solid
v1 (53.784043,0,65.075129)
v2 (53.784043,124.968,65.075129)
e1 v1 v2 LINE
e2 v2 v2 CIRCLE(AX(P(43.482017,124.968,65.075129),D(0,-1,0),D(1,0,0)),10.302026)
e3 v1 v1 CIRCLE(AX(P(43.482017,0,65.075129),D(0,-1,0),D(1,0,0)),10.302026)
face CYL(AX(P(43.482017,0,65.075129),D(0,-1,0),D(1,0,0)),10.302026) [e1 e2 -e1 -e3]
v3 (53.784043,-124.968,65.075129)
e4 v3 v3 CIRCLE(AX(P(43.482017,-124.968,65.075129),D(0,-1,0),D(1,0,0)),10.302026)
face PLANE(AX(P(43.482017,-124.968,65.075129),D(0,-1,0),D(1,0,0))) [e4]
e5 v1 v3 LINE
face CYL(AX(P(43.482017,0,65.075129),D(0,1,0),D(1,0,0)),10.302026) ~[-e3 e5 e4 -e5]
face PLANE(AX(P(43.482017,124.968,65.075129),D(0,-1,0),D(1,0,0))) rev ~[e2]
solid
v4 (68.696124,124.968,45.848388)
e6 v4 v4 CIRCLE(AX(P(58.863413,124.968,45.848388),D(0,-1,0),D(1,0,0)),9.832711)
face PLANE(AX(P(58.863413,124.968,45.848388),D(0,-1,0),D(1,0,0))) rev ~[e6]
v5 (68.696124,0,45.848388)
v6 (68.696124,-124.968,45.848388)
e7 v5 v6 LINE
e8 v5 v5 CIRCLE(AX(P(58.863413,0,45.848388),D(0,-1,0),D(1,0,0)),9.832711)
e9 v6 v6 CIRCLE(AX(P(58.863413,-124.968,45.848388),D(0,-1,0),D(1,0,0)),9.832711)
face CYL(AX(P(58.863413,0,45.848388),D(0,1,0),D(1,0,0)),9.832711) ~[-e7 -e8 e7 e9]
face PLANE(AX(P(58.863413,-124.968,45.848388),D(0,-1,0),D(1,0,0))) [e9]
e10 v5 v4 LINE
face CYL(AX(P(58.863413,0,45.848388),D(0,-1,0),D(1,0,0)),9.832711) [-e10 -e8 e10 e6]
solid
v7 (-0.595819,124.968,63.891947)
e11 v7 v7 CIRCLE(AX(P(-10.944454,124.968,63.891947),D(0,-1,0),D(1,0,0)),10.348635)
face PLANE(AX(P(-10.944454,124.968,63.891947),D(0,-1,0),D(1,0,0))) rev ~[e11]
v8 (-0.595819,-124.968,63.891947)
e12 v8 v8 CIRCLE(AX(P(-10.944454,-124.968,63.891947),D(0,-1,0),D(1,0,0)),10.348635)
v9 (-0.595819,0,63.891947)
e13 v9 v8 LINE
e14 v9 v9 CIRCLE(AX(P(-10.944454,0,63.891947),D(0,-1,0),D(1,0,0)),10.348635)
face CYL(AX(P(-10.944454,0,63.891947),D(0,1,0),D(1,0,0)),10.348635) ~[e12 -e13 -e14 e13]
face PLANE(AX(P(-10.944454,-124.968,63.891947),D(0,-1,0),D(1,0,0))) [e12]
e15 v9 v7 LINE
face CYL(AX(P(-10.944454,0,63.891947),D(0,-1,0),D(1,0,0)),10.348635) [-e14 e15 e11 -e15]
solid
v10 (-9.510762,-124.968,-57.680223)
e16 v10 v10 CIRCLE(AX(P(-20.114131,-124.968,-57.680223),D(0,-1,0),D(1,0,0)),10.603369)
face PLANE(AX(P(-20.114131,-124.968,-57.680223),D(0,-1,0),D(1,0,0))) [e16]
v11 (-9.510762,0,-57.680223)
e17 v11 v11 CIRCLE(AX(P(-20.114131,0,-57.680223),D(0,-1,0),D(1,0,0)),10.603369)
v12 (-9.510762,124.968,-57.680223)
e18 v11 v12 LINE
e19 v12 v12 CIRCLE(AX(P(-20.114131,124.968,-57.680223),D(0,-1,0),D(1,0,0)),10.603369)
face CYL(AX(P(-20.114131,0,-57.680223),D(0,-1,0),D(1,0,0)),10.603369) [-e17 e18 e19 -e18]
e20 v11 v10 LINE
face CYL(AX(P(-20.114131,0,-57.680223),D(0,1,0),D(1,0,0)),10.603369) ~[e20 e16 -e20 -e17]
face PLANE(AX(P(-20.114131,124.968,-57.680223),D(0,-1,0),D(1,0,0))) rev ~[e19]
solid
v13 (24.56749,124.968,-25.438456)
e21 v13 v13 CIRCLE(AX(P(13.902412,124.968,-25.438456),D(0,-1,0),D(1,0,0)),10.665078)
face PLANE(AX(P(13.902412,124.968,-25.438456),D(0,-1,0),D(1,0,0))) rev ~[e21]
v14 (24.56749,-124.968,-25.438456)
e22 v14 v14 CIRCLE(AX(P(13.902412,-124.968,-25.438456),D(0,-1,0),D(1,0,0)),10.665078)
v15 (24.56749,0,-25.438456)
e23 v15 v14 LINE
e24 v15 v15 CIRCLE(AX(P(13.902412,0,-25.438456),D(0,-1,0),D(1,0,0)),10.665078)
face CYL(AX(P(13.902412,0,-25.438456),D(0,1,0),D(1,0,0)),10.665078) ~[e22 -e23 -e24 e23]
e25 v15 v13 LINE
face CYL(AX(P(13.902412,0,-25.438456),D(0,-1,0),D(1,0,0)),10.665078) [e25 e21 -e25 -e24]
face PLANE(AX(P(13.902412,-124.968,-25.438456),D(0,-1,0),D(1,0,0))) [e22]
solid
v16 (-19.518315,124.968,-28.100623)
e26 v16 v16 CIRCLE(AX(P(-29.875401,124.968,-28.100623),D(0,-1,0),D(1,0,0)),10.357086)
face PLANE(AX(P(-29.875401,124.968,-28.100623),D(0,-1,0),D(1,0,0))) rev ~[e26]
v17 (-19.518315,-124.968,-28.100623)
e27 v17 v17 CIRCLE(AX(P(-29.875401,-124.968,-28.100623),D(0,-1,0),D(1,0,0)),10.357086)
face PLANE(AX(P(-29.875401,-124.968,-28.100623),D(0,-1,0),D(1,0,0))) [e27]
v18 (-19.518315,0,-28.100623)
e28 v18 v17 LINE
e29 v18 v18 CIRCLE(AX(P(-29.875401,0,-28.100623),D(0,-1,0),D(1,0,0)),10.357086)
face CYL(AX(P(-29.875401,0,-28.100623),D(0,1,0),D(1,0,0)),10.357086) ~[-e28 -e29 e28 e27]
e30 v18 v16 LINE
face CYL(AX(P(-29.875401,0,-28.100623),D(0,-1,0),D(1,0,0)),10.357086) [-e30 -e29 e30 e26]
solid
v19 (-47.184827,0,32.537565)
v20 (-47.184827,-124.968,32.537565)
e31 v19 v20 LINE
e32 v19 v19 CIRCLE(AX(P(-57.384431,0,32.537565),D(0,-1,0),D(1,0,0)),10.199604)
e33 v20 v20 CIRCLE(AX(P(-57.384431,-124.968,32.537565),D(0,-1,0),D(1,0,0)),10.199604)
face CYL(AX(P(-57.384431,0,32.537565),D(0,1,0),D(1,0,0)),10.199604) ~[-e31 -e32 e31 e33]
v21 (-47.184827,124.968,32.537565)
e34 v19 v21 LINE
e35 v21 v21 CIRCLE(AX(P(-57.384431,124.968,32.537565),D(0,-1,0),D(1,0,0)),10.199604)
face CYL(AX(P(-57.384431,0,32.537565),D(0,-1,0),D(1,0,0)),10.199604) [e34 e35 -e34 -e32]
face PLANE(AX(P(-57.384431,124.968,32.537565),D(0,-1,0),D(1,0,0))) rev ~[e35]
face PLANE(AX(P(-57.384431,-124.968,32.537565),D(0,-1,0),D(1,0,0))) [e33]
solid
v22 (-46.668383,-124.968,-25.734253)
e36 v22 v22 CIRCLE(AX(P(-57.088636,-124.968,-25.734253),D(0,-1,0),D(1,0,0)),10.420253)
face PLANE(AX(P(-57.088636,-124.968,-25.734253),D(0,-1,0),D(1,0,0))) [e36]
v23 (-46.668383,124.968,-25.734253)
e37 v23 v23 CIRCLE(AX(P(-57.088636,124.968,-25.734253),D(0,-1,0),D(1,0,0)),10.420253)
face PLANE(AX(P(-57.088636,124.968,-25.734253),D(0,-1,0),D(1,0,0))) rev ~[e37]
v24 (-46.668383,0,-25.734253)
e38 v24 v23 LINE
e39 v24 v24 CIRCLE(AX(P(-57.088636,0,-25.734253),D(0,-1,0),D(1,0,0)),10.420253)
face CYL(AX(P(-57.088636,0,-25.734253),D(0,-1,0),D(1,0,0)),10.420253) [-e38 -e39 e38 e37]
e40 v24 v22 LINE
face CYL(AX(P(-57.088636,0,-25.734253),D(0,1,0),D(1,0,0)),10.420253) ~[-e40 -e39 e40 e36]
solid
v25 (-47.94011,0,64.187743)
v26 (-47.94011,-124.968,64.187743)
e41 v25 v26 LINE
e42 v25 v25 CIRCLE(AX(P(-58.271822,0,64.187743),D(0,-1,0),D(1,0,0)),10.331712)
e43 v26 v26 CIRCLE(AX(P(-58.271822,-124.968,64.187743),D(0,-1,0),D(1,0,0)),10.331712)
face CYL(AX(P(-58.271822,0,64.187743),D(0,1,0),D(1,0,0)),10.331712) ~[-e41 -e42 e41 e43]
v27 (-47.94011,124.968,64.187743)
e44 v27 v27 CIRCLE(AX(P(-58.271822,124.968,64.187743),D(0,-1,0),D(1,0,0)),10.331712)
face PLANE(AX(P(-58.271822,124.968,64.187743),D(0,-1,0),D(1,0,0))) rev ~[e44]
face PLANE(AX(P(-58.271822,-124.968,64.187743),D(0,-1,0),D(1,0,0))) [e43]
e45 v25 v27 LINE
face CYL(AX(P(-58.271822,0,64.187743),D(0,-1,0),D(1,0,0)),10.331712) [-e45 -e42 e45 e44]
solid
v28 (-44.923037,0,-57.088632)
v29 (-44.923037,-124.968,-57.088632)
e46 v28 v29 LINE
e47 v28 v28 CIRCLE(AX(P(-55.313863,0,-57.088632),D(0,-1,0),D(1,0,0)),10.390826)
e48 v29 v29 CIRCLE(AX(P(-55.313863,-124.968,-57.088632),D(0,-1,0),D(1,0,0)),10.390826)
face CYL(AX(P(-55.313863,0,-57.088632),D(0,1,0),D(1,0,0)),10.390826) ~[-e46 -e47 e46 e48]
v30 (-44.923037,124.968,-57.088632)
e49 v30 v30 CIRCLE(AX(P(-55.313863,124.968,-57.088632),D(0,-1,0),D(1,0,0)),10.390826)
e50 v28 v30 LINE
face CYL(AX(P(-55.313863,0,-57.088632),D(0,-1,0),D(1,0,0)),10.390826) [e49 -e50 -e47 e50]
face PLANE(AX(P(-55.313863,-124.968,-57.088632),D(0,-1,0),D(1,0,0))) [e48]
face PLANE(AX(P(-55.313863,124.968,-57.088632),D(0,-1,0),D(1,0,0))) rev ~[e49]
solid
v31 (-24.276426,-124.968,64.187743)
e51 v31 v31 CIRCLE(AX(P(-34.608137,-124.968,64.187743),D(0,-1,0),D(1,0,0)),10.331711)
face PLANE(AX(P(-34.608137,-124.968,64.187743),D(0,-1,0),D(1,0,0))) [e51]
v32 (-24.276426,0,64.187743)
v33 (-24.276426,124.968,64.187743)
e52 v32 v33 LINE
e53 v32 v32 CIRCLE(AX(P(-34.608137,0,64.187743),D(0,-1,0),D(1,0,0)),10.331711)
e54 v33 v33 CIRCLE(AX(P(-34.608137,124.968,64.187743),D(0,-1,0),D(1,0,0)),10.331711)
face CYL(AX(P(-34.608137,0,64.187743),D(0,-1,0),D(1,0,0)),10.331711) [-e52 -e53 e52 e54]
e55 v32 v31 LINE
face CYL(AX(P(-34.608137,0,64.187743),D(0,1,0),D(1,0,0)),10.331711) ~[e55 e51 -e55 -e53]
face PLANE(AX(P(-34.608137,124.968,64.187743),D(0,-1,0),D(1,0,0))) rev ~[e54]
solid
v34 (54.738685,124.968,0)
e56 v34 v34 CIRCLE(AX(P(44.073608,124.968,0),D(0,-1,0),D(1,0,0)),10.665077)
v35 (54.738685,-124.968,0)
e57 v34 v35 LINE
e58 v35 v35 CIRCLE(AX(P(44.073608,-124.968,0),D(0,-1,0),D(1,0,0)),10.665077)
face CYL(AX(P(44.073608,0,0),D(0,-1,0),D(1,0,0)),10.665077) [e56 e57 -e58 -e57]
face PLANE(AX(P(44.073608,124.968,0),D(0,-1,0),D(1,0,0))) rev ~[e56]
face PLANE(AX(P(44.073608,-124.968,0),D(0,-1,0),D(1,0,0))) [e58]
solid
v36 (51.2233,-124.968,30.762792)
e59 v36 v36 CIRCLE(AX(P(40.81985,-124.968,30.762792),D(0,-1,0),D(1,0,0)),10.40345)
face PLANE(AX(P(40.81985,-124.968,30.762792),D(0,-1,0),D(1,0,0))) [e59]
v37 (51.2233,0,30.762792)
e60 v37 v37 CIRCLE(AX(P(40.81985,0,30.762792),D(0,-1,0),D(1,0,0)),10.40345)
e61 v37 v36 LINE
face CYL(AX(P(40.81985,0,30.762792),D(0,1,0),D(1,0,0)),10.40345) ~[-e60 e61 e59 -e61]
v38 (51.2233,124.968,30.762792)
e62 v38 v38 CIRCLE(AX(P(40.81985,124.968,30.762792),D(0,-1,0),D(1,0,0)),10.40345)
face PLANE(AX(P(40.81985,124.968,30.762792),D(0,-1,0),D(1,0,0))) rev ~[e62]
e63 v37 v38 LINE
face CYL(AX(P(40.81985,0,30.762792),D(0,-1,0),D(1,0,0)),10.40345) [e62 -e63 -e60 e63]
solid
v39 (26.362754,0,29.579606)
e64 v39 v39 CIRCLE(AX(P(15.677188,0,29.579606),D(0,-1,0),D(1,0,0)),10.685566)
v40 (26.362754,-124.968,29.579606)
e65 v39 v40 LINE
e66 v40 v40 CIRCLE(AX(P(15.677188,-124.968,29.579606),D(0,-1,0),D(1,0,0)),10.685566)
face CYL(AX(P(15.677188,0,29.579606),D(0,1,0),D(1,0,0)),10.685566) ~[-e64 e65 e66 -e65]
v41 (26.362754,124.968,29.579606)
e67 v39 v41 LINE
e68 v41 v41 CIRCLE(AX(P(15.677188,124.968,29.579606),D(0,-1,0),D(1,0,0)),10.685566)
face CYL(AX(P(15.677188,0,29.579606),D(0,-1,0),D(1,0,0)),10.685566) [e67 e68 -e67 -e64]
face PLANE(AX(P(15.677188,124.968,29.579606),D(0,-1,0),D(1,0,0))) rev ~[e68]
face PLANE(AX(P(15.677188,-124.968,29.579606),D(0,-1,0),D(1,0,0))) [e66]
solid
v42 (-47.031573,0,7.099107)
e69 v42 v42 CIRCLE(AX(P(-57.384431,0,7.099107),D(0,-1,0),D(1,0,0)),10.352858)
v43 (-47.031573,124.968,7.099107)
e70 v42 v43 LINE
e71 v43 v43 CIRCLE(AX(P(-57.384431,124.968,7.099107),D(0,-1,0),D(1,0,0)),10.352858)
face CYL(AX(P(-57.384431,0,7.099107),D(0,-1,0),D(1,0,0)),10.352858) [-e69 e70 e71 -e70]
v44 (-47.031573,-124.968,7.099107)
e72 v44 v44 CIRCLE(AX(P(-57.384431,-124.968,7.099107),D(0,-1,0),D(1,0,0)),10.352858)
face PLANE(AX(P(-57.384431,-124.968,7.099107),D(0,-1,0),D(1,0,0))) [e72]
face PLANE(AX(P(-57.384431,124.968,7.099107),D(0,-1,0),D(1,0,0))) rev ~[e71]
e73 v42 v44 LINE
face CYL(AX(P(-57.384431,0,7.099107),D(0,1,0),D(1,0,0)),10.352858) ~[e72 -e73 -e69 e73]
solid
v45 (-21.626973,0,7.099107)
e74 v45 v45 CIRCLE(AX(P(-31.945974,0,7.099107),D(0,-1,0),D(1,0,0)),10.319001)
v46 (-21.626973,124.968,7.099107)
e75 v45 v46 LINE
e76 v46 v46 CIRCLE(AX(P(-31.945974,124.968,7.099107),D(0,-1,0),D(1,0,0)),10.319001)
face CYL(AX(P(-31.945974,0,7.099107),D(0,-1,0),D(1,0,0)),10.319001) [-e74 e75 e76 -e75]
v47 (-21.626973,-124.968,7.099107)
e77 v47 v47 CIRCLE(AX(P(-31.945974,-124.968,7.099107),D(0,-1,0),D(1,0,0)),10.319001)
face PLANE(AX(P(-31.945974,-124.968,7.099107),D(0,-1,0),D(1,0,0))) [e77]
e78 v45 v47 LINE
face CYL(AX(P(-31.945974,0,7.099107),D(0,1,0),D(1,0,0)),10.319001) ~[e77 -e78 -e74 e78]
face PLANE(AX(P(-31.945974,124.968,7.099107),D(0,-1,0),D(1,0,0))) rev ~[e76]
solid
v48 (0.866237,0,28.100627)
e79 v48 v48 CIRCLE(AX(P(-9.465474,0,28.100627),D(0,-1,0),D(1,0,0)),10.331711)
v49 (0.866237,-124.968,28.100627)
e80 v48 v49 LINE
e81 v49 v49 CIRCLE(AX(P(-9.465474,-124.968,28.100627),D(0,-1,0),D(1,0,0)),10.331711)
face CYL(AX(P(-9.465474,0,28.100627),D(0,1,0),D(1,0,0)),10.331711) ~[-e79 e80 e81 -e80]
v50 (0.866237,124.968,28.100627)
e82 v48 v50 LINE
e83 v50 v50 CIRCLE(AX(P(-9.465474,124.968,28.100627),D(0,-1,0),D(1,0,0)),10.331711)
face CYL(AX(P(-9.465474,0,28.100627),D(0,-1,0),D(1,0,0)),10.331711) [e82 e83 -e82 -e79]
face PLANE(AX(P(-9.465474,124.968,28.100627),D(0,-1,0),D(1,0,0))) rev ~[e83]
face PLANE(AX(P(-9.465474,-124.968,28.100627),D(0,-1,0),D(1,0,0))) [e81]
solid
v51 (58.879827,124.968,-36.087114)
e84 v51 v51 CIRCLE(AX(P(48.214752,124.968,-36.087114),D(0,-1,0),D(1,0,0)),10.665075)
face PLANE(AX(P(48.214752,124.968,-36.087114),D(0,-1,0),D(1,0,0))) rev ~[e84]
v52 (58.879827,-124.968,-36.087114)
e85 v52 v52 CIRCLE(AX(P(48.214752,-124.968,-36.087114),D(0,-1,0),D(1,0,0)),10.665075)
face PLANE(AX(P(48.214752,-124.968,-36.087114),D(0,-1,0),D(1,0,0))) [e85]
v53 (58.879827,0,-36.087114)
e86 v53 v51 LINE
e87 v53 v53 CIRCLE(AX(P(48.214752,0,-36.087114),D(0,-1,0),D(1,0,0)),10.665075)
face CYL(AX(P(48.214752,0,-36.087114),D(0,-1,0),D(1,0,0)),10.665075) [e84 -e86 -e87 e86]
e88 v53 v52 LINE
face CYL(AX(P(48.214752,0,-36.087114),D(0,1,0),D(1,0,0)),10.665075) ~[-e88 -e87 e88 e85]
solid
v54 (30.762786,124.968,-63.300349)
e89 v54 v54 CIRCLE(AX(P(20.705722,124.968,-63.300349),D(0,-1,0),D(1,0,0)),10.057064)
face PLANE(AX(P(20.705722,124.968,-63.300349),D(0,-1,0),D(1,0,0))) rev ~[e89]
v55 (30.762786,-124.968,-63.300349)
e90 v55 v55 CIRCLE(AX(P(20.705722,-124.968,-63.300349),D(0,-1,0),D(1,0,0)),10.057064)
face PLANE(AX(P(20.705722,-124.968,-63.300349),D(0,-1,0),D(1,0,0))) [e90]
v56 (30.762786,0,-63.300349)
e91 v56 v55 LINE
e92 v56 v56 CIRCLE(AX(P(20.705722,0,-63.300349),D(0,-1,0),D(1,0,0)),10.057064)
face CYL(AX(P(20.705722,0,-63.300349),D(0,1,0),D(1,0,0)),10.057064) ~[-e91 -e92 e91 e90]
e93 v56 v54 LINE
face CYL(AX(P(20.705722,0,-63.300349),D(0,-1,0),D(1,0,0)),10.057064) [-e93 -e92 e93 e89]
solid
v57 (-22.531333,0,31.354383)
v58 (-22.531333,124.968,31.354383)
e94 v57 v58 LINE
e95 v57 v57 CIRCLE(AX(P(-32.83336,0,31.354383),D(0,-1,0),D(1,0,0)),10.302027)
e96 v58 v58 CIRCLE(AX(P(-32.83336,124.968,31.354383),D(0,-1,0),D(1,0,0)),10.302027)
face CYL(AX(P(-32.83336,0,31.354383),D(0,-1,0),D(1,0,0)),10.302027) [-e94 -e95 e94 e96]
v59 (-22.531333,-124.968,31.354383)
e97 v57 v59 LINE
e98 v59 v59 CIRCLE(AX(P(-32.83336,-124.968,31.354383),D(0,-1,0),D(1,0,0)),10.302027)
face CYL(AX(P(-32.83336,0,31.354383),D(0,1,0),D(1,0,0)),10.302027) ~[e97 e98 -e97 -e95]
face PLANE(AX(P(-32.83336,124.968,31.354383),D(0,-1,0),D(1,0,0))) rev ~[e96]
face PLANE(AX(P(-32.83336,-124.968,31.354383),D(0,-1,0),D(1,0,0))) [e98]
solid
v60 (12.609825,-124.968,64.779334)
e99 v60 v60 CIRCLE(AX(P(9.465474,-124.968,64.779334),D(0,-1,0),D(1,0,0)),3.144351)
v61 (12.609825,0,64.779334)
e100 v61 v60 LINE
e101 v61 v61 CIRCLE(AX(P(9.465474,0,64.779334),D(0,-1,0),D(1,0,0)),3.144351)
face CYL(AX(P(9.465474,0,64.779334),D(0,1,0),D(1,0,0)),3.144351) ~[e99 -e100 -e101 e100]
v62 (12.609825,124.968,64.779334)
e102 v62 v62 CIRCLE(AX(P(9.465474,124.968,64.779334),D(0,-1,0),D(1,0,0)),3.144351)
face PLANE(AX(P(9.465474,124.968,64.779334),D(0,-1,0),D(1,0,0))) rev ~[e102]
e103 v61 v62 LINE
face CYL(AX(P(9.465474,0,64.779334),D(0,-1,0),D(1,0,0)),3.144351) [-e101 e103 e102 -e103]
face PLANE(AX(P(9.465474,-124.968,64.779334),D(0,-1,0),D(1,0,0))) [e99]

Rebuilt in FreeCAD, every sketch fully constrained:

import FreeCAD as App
import Part
import Sketcher
Q = App.Units.Quantity

doc = App.newDocument("Part")
body = doc.addObject("PartDesign::Body", "Body")
body.AllowCompound = True

sketch1 = body.newObject("Sketcher::SketchObject", "Sketch")
sketch1.AttachmentSupport = (doc.getObject("XZ_Plane"), [""])
sketch1.MapMode = "FlatFace"
sketch1.addGeometry([
    Part.Circle(App.Vector(-58.271822, 64.187743, 0), App.Vector(0, 0, 1), 10.331712),
    Part.Circle(App.Vector(-34.608137, 64.187743, 0), App.Vector(0, 0, 1), 10.331711),
    Part.Circle(App.Vector(-10.944454, 63.891947, 0), App.Vector(0, 0, 1), 10.348635),
    Part.Circle(App.Vector(9.465474, 64.779334, 0), App.Vector(0, 0, 1), 3.144351),
    Part.Circle(App.Vector(-57.384431, 32.537565, 0), App.Vector(0, 0, 1), 10.199604),
    Part.Circle(App.Vector(-32.83336, 31.354383, 0), App.Vector(0, 0, 1), 10.302027),
    Part.Circle(App.Vector(-9.465474, 28.100627, 0), App.Vector(0, 0, 1), 10.331711),
    Part.Circle(App.Vector(-57.384431, 7.099107, 0), App.Vector(0, 0, 1), 10.352858),
    Part.Circle(App.Vector(-31.945974, 7.099107, 0), App.Vector(0, 0, 1), 10.319001),
    Part.Circle(App.Vector(-57.088636, -25.734253, 0), App.Vector(0, 0, 1), 10.420253),
    Part.Circle(App.Vector(-29.875401, -28.100623, 0), App.Vector(0, 0, 1), 10.357086),
    Part.Circle(App.Vector(-55.313863, -57.088632, 0), App.Vector(0, 0, 1), 10.390826),
    Part.Circle(App.Vector(-20.114131, -57.680223, 0), App.Vector(0, 0, 1), 10.603369),
    Part.Circle(App.Vector(13.902412, -25.438456, 0), App.Vector(0, 0, 1), 10.665078),
    Part.Circle(App.Vector(20.705722, -63.300349, 0), App.Vector(0, 0, 1), 10.057064),
    Part.Circle(App.Vector(40.81985, 30.762792, 0), App.Vector(0, 0, 1), 10.40345),
    Part.Circle(App.Vector(15.677188, 29.579606, 0), App.Vector(0, 0, 1), 10.685566),
    Part.Circle(App.Vector(48.214752, -36.087114, 0), App.Vector(0, 0, 1), 10.665075),
    Part.Circle(App.Vector(43.482017, 65.075129, 0), App.Vector(0, 0, 1), 10.302026),
    Part.Circle(App.Vector(58.863413, 45.848388, 0), App.Vector(0, 0, 1), 9.832711),
    Part.Circle(App.Vector(44.073608, 0, 0), App.Vector(0, 0, 1), 10.665077),
], False)
sketch1.addConstraint([
    Sketcher.Constraint("Equal", 0, 1),
    Sketcher.Constraint("Equal", 1, 6),
    Sketcher.Constraint("Equal", 5, 18),
    Sketcher.Constraint("Equal", 13, 20),
    Sketcher.Constraint("PointOnObject", 20, 3, -1),
    Sketcher.Constraint("Horizontal", 0, 3, 1, 3),
    Sketcher.Constraint("Horizontal", 7, 3, 8, 3),
    Sketcher.Constraint("Vertical", 4, 3, 7, 3),
    Sketcher.Constraint("Diameter", 3, 6.288702),
    Sketcher.Constraint("Diameter", 8, 20.638002),
    Sketcher.Constraint("Diameter", 15, 20.8069),
    Sketcher.Constraint("Diameter", 2, 20.69727),
    Sketcher.Constraint("Diameter", 4, 20.399208),
    Sketcher.Constraint("Diameter", 12, 21.206738),
    Sketcher.Constraint("Diameter", 14, 20.114128),
    Sketcher.Constraint("Diameter", 16, 21.371132),
    Sketcher.Constraint("Diameter", 17, 21.33015),
    Sketcher.Constraint("Diameter", 18, 20.604052),
    Sketcher.Constraint("Diameter", 19, 19.665422),
    Sketcher.Constraint("Diameter", 0, 20.663424),
    Sketcher.Constraint("Diameter", 7, 20.705716),
    Sketcher.Constraint("Diameter", 9, 20.840506),
    Sketcher.Constraint("Diameter", 10, 20.714172),
    Sketcher.Constraint("Diameter", 11, 20.781652),
    Sketcher.Constraint("Diameter", 13, 21.330156),
    Sketcher.Constraint("DistanceX", 10, 3, -1, 1, 29.875401),
    Sketcher.Constraint("DistanceX", 8, 3, 6, 3, 22.4805),
    Sketcher.Constraint("DistanceY", 12, 3, 10, 3, 29.5796),
    Sketcher.Constraint("DistanceX", 7, 3, 12, 3, 37.2703),
    Sketcher.Constraint("DistanceX", 15, 3, 17, 3, 7.394902),
    Sketcher.Constraint("DistanceX", 4, 3, -1, 1, 57.384431),
    Sketcher.Constraint("DistanceX", 5, 3, -1, 1, 32.83336),
    Sketcher.Constraint("DistanceY", 11, 3, -1, 1, 57.088632),
    Sketcher.Constraint("DistanceY", 14, 3, -1, 1, 63.300349),
    Sketcher.Constraint("DistanceX", -1, 1, 15, 3, 40.81985),
    Sketcher.Constraint("DistanceY", -1, 1, 18, 3, 65.075129),
    Sketcher.Constraint("DistanceX", 2, 3, 3, 3, 20.409928),
    Sketcher.Constraint("DistanceX", 1, 3, 3, 3, 44.073611),
    Sketcher.Constraint("DistanceY", 1, 3, 3, 3, 0.591591),
    Sketcher.Constraint("DistanceX", 0, 3, 4, 3, 0.887391),
    Sketcher.Constraint("DistanceY", 4, 3, 3, 3, 32.241769),
    Sketcher.Constraint("DistanceY", 5, 3, 1, 3, 32.83336),
    Sketcher.Constraint("DistanceX", 2, 3, 6, 3, 1.47898),
    Sketcher.Constraint("DistanceY", 6, 3, 2, 3, 35.79132),
    Sketcher.Constraint("DistanceY", 6, 3, 4, 3, 4.436938),
    Sketcher.Constraint("DistanceY", 7, 3, 4, 3, 25.438458),
    Sketcher.Constraint("DistanceY", 9, 3, 7, 3, 32.83336),
    Sketcher.Constraint("DistanceY", 10, 3, 9, 3, 2.36637),
    Sketcher.Constraint("DistanceY", 11, 3, 9, 3, 31.354379),
    Sketcher.Constraint("DistanceX", 11, 3, 10, 3, 25.438462),
    Sketcher.Constraint("DistanceX", 11, 3, 8, 3, 23.367889),
    Sketcher.Constraint("DistanceX", 9, 3, 13, 3, 70.991048),
    Sketcher.Constraint("DistanceX", 13, 3, 14, 3, 6.80331),
    Sketcher.Constraint("DistanceX", 13, 3, 15, 3, 26.917438),
    Sketcher.Constraint("DistanceY", 15, 3, 5, 3, 0.591591),
    Sketcher.Constraint("DistanceY", 6, 3, 16, 3, 1.478979),
    Sketcher.Constraint("DistanceY", 17, 3, 13, 3, 10.648658),
    Sketcher.Constraint("DistanceY", 12, 3, 17, 3, 21.593109),
    Sketcher.Constraint("DistanceX", 16, 3, 18, 3, 27.804829),
    Sketcher.Constraint("DistanceX", 2, 3, 18, 3, 54.426471),
    Sketcher.Constraint("DistanceY", 19, 3, 18, 3, 19.226741),
    Sketcher.Constraint("DistanceX", 3, 3, 19, 3, 49.397939),
    Sketcher.Constraint("DistanceX", 16, 3, 20, 3, 28.39642),
])
pad1 = body.newObject("PartDesign::Pad", "Pad")
pad1.Profile = sketch1
pad1.Length = Q("9.84 in")
pad1.Midplane = True

doc.recompute()
